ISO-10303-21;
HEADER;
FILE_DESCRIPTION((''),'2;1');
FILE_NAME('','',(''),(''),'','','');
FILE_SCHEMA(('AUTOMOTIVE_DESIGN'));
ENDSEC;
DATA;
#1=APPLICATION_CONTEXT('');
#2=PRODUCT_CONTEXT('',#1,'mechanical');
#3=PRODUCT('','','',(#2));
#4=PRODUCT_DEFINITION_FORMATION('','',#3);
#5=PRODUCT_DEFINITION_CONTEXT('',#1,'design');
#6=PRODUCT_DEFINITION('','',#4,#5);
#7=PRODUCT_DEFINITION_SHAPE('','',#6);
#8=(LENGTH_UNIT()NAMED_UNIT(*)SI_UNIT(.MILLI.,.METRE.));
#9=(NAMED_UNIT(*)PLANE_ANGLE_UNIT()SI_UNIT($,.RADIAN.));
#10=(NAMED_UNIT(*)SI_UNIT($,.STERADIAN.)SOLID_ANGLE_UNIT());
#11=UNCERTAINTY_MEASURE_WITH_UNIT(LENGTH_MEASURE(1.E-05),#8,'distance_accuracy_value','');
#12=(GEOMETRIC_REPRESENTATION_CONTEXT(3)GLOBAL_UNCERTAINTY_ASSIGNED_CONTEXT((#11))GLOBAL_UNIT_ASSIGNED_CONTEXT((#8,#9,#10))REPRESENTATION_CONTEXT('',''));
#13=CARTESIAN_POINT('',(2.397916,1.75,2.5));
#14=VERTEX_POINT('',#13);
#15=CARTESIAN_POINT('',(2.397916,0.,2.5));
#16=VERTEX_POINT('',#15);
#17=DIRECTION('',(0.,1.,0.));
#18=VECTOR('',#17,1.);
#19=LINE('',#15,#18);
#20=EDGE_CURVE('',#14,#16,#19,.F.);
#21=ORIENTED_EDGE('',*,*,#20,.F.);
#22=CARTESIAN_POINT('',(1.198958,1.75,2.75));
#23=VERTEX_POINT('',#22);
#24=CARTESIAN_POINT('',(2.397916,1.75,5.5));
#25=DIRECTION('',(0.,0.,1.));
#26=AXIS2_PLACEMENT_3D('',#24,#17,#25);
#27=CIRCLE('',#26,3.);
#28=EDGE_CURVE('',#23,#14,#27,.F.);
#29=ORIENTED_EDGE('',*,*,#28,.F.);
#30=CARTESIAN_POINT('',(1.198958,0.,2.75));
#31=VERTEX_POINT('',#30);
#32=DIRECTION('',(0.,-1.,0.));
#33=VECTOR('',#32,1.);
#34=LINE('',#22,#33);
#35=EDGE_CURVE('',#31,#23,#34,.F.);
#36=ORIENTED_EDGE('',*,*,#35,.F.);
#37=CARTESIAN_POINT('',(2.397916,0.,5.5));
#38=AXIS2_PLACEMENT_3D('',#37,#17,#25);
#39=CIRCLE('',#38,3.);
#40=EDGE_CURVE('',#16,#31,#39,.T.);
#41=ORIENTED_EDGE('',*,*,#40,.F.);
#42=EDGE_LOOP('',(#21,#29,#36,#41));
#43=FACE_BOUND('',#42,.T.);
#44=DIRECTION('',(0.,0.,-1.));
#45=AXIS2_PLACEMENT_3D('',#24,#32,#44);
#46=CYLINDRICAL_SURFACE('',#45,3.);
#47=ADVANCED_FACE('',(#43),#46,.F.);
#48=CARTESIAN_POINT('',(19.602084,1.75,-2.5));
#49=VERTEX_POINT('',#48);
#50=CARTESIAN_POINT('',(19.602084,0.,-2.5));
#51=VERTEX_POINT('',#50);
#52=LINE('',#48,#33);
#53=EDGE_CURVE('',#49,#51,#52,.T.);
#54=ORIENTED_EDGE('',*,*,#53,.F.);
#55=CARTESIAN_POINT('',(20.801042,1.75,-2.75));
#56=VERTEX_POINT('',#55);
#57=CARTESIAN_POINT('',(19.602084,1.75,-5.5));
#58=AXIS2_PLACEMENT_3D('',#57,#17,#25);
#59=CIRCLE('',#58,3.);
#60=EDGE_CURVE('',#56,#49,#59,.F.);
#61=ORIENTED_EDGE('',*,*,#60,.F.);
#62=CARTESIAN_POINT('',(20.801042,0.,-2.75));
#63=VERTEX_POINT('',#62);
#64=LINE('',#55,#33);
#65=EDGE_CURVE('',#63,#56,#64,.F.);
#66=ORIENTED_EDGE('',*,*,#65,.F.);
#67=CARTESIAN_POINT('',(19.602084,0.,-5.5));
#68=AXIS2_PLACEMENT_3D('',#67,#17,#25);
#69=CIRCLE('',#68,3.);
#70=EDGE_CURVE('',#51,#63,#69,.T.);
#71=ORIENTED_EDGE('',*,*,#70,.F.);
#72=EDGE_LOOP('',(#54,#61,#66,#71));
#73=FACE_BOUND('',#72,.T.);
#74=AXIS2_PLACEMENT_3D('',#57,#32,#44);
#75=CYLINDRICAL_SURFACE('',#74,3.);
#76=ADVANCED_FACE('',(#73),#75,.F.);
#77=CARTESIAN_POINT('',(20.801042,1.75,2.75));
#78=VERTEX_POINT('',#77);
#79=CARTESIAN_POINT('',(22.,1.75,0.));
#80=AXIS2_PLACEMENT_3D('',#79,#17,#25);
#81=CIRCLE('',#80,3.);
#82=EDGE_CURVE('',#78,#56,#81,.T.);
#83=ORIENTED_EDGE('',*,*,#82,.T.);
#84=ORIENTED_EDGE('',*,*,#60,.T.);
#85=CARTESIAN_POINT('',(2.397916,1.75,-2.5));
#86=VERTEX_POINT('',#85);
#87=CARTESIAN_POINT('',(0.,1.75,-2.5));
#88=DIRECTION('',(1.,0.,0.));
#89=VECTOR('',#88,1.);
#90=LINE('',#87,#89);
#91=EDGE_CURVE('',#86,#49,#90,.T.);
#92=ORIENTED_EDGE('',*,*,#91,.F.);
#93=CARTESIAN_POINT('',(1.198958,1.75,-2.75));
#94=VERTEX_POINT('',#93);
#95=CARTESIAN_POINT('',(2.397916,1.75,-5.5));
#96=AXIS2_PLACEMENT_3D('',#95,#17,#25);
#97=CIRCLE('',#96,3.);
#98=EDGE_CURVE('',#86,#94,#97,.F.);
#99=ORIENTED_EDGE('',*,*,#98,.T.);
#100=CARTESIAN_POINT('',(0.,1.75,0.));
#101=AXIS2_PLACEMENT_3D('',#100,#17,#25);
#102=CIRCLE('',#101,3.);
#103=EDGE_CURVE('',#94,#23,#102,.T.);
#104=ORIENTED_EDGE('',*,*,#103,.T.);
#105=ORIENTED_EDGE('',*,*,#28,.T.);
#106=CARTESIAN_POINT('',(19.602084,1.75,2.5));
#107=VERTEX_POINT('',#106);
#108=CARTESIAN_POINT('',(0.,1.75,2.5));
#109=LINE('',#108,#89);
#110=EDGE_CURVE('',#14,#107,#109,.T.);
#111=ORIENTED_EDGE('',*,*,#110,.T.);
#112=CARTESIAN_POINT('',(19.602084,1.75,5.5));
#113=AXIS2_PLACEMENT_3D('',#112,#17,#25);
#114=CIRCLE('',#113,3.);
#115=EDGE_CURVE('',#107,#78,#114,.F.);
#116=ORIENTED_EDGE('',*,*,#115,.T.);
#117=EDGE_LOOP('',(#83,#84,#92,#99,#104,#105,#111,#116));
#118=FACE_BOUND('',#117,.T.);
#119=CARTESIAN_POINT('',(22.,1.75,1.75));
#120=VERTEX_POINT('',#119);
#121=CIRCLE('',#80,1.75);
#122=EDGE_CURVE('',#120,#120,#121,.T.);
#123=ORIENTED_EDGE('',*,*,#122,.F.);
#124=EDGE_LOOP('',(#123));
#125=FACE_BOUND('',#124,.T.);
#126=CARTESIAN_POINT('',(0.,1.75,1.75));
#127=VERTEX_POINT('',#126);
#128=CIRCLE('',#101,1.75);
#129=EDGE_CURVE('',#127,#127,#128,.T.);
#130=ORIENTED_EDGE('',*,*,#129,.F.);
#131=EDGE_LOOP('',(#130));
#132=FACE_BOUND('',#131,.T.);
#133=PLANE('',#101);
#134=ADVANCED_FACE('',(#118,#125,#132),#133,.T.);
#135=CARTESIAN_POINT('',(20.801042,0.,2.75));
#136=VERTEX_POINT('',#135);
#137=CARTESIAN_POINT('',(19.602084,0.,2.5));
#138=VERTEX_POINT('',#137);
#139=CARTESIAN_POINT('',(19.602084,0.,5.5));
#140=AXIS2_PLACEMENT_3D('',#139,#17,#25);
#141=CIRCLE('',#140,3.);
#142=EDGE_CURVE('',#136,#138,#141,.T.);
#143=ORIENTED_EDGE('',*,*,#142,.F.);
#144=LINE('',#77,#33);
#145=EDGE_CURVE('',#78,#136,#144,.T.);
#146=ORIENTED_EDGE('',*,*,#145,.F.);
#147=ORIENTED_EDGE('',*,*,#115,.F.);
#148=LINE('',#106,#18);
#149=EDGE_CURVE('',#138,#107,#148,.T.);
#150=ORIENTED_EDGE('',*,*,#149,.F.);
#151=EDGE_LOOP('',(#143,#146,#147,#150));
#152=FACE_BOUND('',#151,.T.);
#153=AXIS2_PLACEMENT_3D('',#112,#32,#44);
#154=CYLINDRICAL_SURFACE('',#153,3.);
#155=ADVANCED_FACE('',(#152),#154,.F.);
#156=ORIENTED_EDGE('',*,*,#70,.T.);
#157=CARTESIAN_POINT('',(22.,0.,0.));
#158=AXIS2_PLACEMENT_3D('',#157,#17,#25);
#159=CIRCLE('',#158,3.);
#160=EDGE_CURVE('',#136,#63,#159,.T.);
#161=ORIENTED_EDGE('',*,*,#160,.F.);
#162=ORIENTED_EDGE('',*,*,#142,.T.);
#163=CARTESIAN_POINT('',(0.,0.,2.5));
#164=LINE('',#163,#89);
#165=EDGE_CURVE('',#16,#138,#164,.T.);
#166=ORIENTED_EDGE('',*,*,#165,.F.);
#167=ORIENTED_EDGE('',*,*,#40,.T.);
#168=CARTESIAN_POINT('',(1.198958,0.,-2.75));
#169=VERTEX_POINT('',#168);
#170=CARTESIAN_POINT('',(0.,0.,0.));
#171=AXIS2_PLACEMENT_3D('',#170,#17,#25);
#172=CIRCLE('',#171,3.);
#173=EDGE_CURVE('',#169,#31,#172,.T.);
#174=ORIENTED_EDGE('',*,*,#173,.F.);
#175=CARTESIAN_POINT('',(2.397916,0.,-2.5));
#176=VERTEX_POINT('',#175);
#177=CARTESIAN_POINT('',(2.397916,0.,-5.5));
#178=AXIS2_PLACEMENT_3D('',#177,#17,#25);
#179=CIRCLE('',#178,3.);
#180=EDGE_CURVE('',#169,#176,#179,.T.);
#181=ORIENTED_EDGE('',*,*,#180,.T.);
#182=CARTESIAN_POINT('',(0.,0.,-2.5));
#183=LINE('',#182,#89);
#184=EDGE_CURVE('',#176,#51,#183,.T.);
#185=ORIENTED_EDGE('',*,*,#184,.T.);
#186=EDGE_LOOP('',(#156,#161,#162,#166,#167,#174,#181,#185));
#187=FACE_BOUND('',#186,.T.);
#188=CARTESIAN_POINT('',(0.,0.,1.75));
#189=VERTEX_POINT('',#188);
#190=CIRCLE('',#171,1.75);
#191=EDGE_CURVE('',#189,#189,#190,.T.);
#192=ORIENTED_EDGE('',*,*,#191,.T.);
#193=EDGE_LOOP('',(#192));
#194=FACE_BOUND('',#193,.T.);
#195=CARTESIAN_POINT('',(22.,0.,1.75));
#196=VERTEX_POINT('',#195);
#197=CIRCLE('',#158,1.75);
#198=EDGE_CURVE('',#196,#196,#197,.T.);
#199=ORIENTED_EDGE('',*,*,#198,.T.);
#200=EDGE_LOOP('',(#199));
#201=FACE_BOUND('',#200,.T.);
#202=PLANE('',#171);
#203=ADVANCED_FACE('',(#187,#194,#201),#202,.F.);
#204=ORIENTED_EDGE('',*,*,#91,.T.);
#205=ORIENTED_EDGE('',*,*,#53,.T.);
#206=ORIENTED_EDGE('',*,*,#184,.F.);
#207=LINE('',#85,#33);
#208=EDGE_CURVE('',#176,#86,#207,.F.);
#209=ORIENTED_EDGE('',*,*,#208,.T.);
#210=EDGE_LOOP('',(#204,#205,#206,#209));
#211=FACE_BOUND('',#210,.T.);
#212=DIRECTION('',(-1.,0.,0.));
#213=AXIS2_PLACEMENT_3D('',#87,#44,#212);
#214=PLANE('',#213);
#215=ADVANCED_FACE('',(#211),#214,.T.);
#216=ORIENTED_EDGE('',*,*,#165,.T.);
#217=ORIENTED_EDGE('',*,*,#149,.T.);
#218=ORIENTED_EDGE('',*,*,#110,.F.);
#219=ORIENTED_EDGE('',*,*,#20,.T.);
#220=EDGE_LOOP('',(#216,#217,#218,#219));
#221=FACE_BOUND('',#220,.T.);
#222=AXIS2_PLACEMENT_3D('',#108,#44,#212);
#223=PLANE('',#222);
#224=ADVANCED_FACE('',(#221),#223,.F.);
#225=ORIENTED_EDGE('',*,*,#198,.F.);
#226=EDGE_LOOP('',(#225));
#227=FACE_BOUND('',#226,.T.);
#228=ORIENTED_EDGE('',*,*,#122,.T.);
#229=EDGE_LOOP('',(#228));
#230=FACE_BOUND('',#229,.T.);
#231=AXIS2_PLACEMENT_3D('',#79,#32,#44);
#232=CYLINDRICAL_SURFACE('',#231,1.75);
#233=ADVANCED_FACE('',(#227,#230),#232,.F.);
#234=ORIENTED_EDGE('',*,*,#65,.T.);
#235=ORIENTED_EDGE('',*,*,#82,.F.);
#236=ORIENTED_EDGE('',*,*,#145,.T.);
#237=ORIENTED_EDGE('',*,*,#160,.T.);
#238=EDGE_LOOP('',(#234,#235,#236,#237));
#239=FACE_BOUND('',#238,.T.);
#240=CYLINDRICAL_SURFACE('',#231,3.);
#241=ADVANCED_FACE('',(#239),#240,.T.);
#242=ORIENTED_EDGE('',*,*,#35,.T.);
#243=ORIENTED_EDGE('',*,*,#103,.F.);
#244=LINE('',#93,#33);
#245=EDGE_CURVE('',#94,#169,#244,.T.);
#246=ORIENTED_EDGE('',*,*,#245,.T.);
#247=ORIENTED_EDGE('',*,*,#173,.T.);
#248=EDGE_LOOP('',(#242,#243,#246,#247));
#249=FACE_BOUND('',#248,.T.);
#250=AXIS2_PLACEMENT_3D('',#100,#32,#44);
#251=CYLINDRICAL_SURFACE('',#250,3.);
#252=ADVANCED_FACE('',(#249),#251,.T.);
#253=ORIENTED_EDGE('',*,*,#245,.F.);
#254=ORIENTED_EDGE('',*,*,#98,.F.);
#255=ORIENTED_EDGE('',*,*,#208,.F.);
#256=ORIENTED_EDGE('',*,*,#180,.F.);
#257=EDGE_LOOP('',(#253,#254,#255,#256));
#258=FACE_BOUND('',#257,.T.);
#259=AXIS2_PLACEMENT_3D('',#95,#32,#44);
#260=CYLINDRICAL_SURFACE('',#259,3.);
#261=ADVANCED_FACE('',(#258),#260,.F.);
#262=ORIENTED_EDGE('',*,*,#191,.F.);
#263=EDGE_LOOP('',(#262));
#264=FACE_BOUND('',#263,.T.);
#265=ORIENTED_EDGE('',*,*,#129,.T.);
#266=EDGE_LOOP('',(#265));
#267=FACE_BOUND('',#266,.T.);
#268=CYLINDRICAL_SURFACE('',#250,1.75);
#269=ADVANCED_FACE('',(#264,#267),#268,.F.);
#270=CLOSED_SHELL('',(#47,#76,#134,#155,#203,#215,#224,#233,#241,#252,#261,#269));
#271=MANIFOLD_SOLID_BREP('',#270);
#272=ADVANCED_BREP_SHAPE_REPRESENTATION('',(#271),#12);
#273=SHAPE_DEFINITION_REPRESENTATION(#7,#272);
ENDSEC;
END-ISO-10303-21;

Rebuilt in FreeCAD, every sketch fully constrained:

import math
import FreeCAD as App
import Part
import Sketcher


def edges_at(feature, points):
    """Names of the edges that pass closest to the given points."""
    edges = feature.Shape.Edges
    near = lambda p: min(range(len(edges)), key=lambda i: edges[i].distToShape(Part.Vertex(*p))[0])
    return sorted({f"Edge{near(p) + 1}" for p in points})

doc = App.newDocument("Part")
body = doc.addObject("PartDesign::Body", "Body")

# Sketch on XZ plane
sketch1 = body.newObject("Sketcher::SketchObject", "Sketch")
sketch1.AttachmentSupport = (doc.getObject("XZ_Plane"), [""])
sketch1.MapMode = "FlatFace"
sketch1.addGeometry([
    Part.ArcOfCircle(Part.Circle(App.Vector(0, 0, 0), App.Vector(0, 0, 1), 3), math.radians(56), math.radians(304)),  # 0
    Part.LineSegment(App.Vector(1.7, 2.5, 0), App.Vector(20.3, 2.5, 0)),  # 1
    Part.ArcOfCircle(Part.Circle(App.Vector(22, 0, 0), App.Vector(0, 0, 1), 3), math.radians(-124), math.radians(124)),  # 2
    Part.LineSegment(App.Vector(20.3, -2.5, 0), App.Vector(1.7, -2.5, 0)),  # 3
    Part.Circle(App.Vector(0, 0, 0), App.Vector(0, 0, 1), 1.8),  # 4
    Part.Circle(App.Vector(22, 0, 0), App.Vector(0, 0, 1), 1.8),  # 5
], False)
sketch1.addConstraint([
    Sketcher.Constraint("Coincident", 0, 1, 1, 1),
    Sketcher.Constraint("Coincident", 1, 2, 2, 2),
    Sketcher.Constraint("Coincident", 2, 1, 3, 1),
    Sketcher.Constraint("Coincident", 3, 2, 0, 2),
    Sketcher.Constraint("Horizontal", 1),
    Sketcher.Constraint("Horizontal", 3),
    Sketcher.Constraint("Coincident", 0, 3, -1, 1),
    Sketcher.Constraint("Coincident", 4, 3, -1, 1),
    Sketcher.Constraint("Coincident", 5, 3, 2, 3),
    Sketcher.Constraint("Equal", 0, 2),
    Sketcher.Constraint("Equal", 4, 5),
    Sketcher.Constraint("Symmetric", 1, 2, 2, 1, -1),
    Sketcher.Constraint("Radius", 0, 3.0),
    Sketcher.Constraint("Diameter", 4, 3.5),
    Sketcher.Constraint("DistanceX", -1, 1, 2, 3, 22.0),
    Sketcher.Constraint("DistanceY", 2, 1, 1, 2, 5.0),
])
pad1 = body.newObject("PartDesign::Pad", "Pad")
pad1.Profile = sketch1
pad1.Length = 1.75
pad1.Reversed = True
doc.recompute()

fillet = body.newObject("PartDesign::Fillet", "Fillet")
fillet.Base = (pad1, edges_at(pad1, [
    (20.342, 0.875, 2.5),
    (1.658, 0.875, 2.5),
    (1.658, 0.875, -2.5),
    (20.342, 0.875, -2.5),
]))
fillet.Radius = 3

doc.recompute()
